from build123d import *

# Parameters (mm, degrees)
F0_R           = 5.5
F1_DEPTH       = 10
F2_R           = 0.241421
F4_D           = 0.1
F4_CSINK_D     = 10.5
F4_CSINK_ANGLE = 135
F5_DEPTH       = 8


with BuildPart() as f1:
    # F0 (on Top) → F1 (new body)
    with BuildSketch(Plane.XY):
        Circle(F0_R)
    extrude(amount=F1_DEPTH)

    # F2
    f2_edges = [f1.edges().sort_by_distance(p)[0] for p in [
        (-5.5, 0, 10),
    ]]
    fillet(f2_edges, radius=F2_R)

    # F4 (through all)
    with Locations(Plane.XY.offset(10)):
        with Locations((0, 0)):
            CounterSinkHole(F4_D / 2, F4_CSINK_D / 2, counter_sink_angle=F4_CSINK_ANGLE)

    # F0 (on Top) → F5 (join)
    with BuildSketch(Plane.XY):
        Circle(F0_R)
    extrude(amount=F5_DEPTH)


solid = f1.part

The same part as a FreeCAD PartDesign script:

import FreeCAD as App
import Part
import Sketcher


def edges_at(feature, points):
    """Names of the edges that pass closest to the given points."""
    edges = feature.Shape.Edges
    near = lambda p: min(range(len(edges)), key=lambda i: edges[i].distToShape(Part.Vertex(*p))[0])
    return sorted({f"Edge{near(p) + 1}" for p in points})

doc = App.newDocument("Part")
body = doc.addObject("PartDesign::Body", "Body")

sketch1 = body.newObject("Sketcher::SketchObject", "Sketch")
sketch1.AttachmentSupport = (doc.getObject("XY_Plane"), [""])
sketch1.MapMode = "FlatFace"
sketch1.addGeometry(Part.Circle(App.Vector(0, 0, 0), App.Vector(0, 0, 1), 6), False)
sketch1.addConstraint(Sketcher.Constraint("Coincident", 0, 3, -1, 1))
sketch1.addConstraint(Sketcher.Constraint("Diameter", 0, 11.0))
pad1 = body.newObject("PartDesign::Pad", "Pad")
pad1.Profile = sketch1
pad1.Length = 10
doc.recompute()

fillet = body.newObject("PartDesign::Fillet", "Fillet")
fillet.Base = (pad1, edges_at(pad1, [(-5.5, 0, 10)]))
fillet.Radius = 0.241421

sketch2 = body.newObject("Sketcher::SketchObject", "Sketch001")
sketch2.AttachmentSupport = (doc.getObject("XY_Plane"), [""])
sketch2.MapMode = "FlatFace"
sketch2.AttachmentOffset = App.Placement(App.Vector(0, 0, 10), App.Rotation())
sketch2.addGeometry(Part.Circle(App.Vector(0, 0, 0), App.Vector(0, 0, 1), 0.05), False)
sketch2.addConstraint(Sketcher.Constraint("Coincident", 0, 3, -1, 1))
sketch2.addConstraint(Sketcher.Constraint("Diameter", 0, 0.1))
doc.recompute()
hole = body.newObject("PartDesign::Hole", "Hole")
hole.Profile = sketch2
hole.ThreadType = "None"
hole.Diameter = 0.1
hole.DepthType = "ThroughAll"
hole.HoleCutType = "Countersink"
hole.HoleCutDiameter = 10.5
hole.HoleCutCountersinkAngle = 135

sketch3 = body.newObject("Sketcher::SketchObject", "Sketch002")
sketch3.AttachmentSupport = (doc.getObject("XY_Plane"), [""])
sketch3.MapMode = "FlatFace"
sketch3.addGeometry(Part.Circle(App.Vector(0, 0, 0), App.Vector(0, 0, 1), 6), False)
sketch3.addConstraint(Sketcher.Constraint("Coincident", 0, 3, -1, 1))
sketch3.addConstraint(Sketcher.Constraint("Diameter", 0, 11.0))
pad2 = body.newObject("PartDesign::Pad", "Pad001")
pad2.Profile = sketch3
pad2.Length = 8

doc.recompute()
